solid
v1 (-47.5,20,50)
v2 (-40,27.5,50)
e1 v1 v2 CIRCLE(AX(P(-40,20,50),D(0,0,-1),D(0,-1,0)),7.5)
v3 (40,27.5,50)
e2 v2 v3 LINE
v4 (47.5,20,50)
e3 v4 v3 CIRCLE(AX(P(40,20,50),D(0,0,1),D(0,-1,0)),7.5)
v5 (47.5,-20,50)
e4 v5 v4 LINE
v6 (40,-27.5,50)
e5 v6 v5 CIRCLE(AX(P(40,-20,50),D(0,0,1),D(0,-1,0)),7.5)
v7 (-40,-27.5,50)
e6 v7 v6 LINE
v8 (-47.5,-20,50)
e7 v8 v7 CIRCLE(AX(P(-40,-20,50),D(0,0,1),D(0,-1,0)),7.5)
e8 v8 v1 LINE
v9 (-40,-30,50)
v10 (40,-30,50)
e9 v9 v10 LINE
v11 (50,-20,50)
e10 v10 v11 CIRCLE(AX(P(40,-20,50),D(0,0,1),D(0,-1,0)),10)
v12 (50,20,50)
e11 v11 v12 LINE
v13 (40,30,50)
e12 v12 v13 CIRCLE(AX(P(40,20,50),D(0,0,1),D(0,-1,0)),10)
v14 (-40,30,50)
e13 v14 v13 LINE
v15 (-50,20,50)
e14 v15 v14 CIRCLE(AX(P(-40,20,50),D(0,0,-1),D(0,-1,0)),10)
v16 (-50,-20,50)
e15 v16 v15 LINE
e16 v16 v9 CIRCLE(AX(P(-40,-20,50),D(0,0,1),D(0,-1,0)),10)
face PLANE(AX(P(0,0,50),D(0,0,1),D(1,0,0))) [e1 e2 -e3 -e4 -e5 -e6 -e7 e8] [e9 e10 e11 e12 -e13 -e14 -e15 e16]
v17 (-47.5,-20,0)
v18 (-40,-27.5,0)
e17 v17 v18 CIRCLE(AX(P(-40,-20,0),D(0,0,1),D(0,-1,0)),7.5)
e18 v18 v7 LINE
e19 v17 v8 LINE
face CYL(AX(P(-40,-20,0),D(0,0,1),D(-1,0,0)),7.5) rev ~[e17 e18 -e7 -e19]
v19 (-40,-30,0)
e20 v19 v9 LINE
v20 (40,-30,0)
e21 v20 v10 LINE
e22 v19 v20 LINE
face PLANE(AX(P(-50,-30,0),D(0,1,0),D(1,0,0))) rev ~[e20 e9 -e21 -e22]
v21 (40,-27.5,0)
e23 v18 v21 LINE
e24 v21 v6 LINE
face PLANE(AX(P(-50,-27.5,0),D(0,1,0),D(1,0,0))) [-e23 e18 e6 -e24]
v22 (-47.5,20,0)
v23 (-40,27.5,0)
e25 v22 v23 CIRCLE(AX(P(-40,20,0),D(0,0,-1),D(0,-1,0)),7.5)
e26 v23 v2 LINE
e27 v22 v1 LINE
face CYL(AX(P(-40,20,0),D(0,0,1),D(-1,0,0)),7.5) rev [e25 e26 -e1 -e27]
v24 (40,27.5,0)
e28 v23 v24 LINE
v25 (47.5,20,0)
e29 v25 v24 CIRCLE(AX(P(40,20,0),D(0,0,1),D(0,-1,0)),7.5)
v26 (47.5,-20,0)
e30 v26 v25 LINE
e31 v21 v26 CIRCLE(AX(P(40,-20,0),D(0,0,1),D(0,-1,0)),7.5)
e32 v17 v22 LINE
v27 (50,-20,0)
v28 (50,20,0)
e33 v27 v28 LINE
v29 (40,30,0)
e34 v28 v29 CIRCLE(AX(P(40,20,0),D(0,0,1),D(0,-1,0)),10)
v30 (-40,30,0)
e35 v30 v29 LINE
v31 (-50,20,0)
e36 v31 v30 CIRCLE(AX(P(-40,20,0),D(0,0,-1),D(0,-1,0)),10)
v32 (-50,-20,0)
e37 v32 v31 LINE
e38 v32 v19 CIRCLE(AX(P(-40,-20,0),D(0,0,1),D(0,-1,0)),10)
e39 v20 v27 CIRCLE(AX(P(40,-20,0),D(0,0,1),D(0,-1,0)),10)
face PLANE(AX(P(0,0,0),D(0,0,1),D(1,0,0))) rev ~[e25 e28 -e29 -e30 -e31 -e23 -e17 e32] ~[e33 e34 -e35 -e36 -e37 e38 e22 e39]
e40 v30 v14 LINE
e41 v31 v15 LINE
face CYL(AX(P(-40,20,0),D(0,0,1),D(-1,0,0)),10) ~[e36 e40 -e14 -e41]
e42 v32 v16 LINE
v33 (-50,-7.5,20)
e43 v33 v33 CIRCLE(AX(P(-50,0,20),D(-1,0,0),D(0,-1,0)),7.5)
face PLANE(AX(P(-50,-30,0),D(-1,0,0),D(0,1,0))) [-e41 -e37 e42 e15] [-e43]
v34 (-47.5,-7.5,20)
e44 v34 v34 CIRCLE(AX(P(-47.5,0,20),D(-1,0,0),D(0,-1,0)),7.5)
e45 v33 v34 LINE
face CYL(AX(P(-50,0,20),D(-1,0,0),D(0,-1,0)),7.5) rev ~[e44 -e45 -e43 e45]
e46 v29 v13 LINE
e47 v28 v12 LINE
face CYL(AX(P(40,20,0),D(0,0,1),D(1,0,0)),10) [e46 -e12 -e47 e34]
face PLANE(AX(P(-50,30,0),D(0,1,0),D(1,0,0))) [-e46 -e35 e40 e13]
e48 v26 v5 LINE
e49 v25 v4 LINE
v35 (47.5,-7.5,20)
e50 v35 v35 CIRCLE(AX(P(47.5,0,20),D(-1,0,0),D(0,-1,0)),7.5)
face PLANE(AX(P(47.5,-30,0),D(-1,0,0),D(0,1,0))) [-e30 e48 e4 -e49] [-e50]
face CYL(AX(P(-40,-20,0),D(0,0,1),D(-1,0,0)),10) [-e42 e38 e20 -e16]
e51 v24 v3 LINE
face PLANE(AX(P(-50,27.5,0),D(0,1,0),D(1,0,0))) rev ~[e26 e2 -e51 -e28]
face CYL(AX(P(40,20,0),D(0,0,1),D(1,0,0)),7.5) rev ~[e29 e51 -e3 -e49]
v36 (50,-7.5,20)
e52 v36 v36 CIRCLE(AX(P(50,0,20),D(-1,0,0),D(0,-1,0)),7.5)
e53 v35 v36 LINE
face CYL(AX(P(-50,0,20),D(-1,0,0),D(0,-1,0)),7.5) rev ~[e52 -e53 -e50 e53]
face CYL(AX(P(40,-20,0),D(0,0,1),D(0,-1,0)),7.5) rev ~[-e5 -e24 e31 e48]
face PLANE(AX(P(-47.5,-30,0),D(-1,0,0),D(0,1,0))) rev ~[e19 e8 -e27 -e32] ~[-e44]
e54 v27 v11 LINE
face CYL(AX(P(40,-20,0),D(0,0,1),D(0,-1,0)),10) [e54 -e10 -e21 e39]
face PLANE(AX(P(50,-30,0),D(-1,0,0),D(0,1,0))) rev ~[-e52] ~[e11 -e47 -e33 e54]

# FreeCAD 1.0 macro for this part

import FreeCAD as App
import Part
import Sketcher

V = App.Vector
Q = App.Units.Quantity


def edges_at(feature, points):
    """Names of the edges that pass closest to the given points."""
    edges = feature.Shape.Edges
    near = lambda p: min(range(len(edges)), key=lambda i: edges[i].distToShape(Part.Vertex(*p))[0])
    return sorted({f"Edge{near(p) + 1}" for p in points})


def faces_at(feature, points):
    """Names of the faces that lie closest to the given points."""
    faces = feature.Shape.Faces
    near = lambda p: min(range(len(faces)), key=lambda i: faces[i].distToShape(Part.Vertex(*p))[0])
    return sorted({f"Face{near(p) + 1}" for p in points})


def add_polygon(sketch, points):
    """Adds a closed chain of lines whose ends are joined by coincident constraints."""
    first, n = sketch.GeometryCount, len(points)
    for a, b in zip(points, points[1:] + points[:1]):
        sketch.addGeometry(Part.LineSegment(App.Vector(*a, 0), App.Vector(*b, 0)), False)
    for i in range(n):
        sketch.addConstraint(Sketcher.Constraint("Coincident", first + i, 2, first + (i + 1) % n, 1))

doc = App.newDocument("Part")
body = doc.addObject("PartDesign::Body", "Body")

sketch1 = body.newObject("Sketcher::SketchObject", "Sketch")
sketch1.AttachmentSupport = (doc.getObject("XY_Plane"), [""])
sketch1.MapMode = "FlatFace"
add_polygon(sketch1, [(-50, 30), (-50, -30), (50, -30), (50, 30)])
sketch1.addConstraint([
    Sketcher.Constraint("Vertical", 0),
    Sketcher.Constraint("Horizontal", 1),
    Sketcher.Constraint("Vertical", 2),
    Sketcher.Constraint("Horizontal", 3),
    Sketcher.Constraint("Symmetric", 0, 2, 2, 2, -1, 1),
    Sketcher.Constraint("DistanceX", 1, 1, 1, 2, Q("100 mm")),
    Sketcher.Constraint("DistanceY", 0, 2, 0, 1, Q("60 mm")),
])
pad1 = body.newObject("PartDesign::Pad", "Pad")
pad1.Profile = sketch1
pad1.Length = 50
doc.recompute()

fillet = body.newObject("PartDesign::Fillet", "Fillet")
fillet.Base = (pad1, edges_at(pad1, [
    (50, -30, 25),
    (50, 30, 25),
    (-50, 30, 25),
    (-50, -30, 25),
]))
fillet.Radius = 10
doc.recompute()

thickness = body.newObject("PartDesign::Thickness", "Thickness")
thickness.Base = (fillet, faces_at(fillet, [(0, 0, 50), (0, 0, 0)]))
thickness.Value = 2.5
thickness.Reversed = True
thickness.Join = "Arc"

sketch2 = body.newObject("Sketcher::SketchObject", "Sketch001")
sketch2.AttachmentSupport = (doc.getObject("YZ_Plane"), [""])
sketch2.MapMode = "FlatFace"
sketch2.AttachmentOffset = App.Placement(V(0, 0, -50), App.Rotation())
sketch2.addGeometry(Part.Circle(V(0, 20, 0), V(0, 0, 1), 7.5), False)
sketch2.addConstraint([
    Sketcher.Constraint("PointOnObject", 0, 3, -2),
    Sketcher.Constraint("Diameter", 0, Q("15 mm")),
    Sketcher.Constraint("DistanceY", -1, 1, 0, 3, Q("20 mm")),
])
pocket1 = body.newObject("PartDesign::Pocket", "Pocket")
pocket1.Profile = sketch2
pocket1.Length = 119.1
pocket1.Reversed = True

doc.recompute()
